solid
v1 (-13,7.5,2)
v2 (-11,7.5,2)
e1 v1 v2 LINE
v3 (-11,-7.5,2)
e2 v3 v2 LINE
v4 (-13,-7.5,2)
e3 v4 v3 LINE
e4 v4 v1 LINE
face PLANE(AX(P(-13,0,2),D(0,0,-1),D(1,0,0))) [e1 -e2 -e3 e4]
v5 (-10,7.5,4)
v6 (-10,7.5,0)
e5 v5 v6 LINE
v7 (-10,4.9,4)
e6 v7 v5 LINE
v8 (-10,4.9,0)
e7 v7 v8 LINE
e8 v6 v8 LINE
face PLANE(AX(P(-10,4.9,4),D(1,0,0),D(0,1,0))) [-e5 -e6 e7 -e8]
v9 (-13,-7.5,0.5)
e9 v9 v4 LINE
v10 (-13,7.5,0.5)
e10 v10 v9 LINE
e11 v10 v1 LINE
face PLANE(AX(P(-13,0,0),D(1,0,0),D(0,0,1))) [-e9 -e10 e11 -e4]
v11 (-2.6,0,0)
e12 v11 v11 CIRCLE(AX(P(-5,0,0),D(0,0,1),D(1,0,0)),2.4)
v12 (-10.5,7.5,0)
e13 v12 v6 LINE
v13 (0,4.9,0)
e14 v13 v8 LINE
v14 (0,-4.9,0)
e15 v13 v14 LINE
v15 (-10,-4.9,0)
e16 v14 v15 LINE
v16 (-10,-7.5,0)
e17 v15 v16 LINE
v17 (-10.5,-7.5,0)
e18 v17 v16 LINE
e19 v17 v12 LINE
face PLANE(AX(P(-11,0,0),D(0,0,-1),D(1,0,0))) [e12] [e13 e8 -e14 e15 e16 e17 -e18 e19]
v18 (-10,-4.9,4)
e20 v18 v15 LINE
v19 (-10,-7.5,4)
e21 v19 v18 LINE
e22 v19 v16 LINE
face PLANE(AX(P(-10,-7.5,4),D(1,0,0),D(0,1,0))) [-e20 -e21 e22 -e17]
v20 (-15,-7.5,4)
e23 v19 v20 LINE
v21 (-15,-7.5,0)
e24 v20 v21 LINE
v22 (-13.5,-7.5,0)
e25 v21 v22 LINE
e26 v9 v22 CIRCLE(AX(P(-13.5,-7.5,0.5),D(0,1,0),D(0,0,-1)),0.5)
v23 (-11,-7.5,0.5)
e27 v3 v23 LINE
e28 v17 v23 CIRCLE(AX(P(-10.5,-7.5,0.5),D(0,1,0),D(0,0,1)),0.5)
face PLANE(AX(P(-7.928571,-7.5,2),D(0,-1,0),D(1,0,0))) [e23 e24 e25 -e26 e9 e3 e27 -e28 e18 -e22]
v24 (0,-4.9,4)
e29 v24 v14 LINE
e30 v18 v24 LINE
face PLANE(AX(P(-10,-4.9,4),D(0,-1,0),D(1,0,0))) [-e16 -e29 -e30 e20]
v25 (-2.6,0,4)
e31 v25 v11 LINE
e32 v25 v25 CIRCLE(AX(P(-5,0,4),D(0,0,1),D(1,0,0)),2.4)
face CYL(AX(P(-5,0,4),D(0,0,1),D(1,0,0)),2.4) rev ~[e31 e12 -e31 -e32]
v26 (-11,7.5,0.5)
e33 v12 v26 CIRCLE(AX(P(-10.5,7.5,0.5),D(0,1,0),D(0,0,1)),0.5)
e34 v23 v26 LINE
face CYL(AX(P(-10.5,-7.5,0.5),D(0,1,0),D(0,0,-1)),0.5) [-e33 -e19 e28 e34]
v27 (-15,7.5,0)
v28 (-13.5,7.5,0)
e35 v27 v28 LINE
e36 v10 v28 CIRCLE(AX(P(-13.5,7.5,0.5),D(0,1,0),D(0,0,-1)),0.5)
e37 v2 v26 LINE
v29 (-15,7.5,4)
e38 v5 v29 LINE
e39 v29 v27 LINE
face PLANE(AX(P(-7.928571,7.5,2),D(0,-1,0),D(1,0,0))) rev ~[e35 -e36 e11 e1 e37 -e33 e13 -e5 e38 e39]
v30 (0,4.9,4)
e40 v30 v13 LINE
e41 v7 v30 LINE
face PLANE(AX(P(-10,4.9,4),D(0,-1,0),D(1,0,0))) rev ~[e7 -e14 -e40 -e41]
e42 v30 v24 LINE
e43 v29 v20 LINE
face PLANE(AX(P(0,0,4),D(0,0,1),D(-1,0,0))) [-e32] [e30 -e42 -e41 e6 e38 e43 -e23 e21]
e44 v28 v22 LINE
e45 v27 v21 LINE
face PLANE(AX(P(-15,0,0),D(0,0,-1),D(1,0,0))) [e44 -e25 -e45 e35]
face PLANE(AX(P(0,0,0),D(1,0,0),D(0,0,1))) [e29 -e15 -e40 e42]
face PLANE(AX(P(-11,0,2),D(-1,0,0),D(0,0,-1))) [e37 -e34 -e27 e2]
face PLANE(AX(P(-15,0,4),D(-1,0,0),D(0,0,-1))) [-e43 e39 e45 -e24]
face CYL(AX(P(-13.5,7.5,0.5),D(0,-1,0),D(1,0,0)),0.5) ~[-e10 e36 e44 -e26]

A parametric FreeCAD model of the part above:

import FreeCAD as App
import Part
import Sketcher
from FreeCAD import Vector


def edges_at(feature, points):
    """Names of the edges that pass closest to the given points."""
    edges = feature.Shape.Edges
    near = lambda p: min(range(len(edges)), key=lambda i: edges[i].distToShape(Part.Vertex(*p))[0])
    return sorted({f"Edge{near(p) + 1}" for p in points})


def add_polygon(sketch, points):
    """Adds a closed chain of lines whose ends are joined by coincident constraints."""
    first, n = sketch.GeometryCount, len(points)
    for a, b in zip(points, points[1:] + points[:1]):
        sketch.addGeometry(Part.LineSegment(App.Vector(*a, 0), App.Vector(*b, 0)), False)
    for i in range(n):
        sketch.addConstraint(Sketcher.Constraint("Coincident", first + i, 2, first + (i + 1) % n, 1))

doc = App.newDocument("Part")
params = doc.addObject("Spreadsheet::Sheet", "Params")
for row, (alias, value) in enumerate([
    ("sketch1_width", "11 mm"),
    ("sketch1_width2", "15 mm"),
    ("sketch1_height", "4 mm"),
    ("pad1_length", "7.5 mm"),
    ("pad1_length2", "7.5 mm"),
    ("sketch2_diameter", "4.8 mm"),
    ("sketch3_width", "10 mm"),
    ("sketch3_height", "2.6 mm"),
    ("fillet_radius", "0.5 mm"),
], start=1):
    params.set(f"A{row}", alias)
    params.set(f"B{row}", "=" + value)
    params.setAlias(f"B{row}", alias)

body = doc.addObject("PartDesign::Body", "Body")

sketch1 = body.newObject("Sketcher::SketchObject", "Sketch")
sketch1.AttachmentSupport = (doc.getObject("XZ_Plane"), [""])
sketch1.MapMode = "FlatFace"
add_polygon(sketch1, [(-11, 0), (0, 0), (0, 4), (-15, 4), (-15, 0), (-13, 0), (-13, 2), (-11, 2)])
sketch1.addConstraint([
    Sketcher.Constraint("Horizontal", 0),
    Sketcher.Constraint("Vertical", 1),
    Sketcher.Constraint("Horizontal", 2),
    Sketcher.Constraint("Vertical", 3),
    Sketcher.Constraint("Horizontal", 4),
    Sketcher.Constraint("Vertical", 5),
    Sketcher.Constraint("Horizontal", 6),
    Sketcher.Constraint("Vertical", 7),
    Sketcher.Constraint("Coincident", 0, 2, -1, 1),
    Sketcher.Constraint("PointOnObject", 3, 2, -1),
    Sketcher.Constraint("Equal", 4, 6),
    Sketcher.Constraint("Equal", 6, 5),
    Sketcher.Constraint("DistanceX", 0, 1, 0, 2, 11.0),
    Sketcher.Constraint("DistanceX", 2, 2, 2, 1, 15.0),
    Sketcher.Constraint("DistanceY", 1, 1, 1, 2, 4.0),
])
sketch1.setExpression("Constraints[20]", "Params.sketch1_width")
sketch1.setExpression("Constraints[21]", "Params.sketch1_width2")
sketch1.setExpression("Constraints[22]", "Params.sketch1_height")
pad1 = body.newObject("PartDesign::Pad", "Pad")
pad1.Profile = sketch1
pad1.Type = "TwoLengths"
pad1.setExpression("Length", "Params.pad1_length")
pad1.setExpression("Length2", "Params.pad1_length2")

sketch2 = body.newObject("Sketcher::SketchObject", "Sketch001")
sketch2.AttachmentSupport = (doc.getObject("XY_Plane"), [""])
sketch2.MapMode = "FlatFace"
sketch2.AttachmentOffset = App.Placement(Vector(0, 0, 4), App.Rotation())
sketch2.addGeometry(Part.Circle(Vector(-5, 0, 0), Vector(0, 0, 1), 2.4), False)
sketch2.addConstraint([
    Sketcher.Constraint("PointOnObject", 0, 3, -1),
    Sketcher.Constraint("Diameter", 0, 4.8),
    Sketcher.Constraint("DistanceX", 0, 3, -1, 1, 5.0),
])
sketch2.setExpression("Constraints[1]", "Params.sketch2_diameter")
pocket1 = body.newObject("PartDesign::Pocket", "Pocket")
pocket1.Profile = sketch2
pocket1.Type = "ThroughAll"

sketch3 = body.newObject("Sketcher::SketchObject", "Sketch002")
sketch3.AttachmentSupport = (doc.getObject("XY_Plane"), [""])
sketch3.MapMode = "FlatFace"
sketch3.AttachmentOffset = App.Placement(Vector(0, 0, 4), App.Rotation())
add_polygon(sketch3, [(-10, 7.5), (-10, 4.9), (0, 4.9), (0, 7.5)])
add_polygon(sketch3, [(-10, -4.9), (-10, -7.5), (0, -7.5), (0, -4.9)])
sketch3.addConstraint([
    Sketcher.Constraint("Vertical", 0),
    Sketcher.Constraint("Horizontal", 1),
    Sketcher.Constraint("Vertical", 2),
    Sketcher.Constraint("Horizontal", 3),
    Sketcher.Constraint("Vertical", 4),
    Sketcher.Constraint("Horizontal", 5),
    Sketcher.Constraint("Vertical", 6),
    Sketcher.Constraint("Horizontal", 7),
    Sketcher.Constraint("Symmetric", 2, 2, 5, 2, -1, 1),
    Sketcher.Constraint("Symmetric", 1, 2, 6, 2, -1),
    Sketcher.Constraint("Vertical", 3, 2, 4, 2),
    Sketcher.Constraint("DistanceX", 1, 1, 1, 2, 10.0),
    Sketcher.Constraint("DistanceY", 0, 2, 0, 1, 2.6),
    Sketcher.Constraint("DistanceY", 4, 2, 3, 2, 15.0),
])
sketch3.setExpression("Constraints[19]", "Params.sketch3_width")
sketch3.setExpression("Constraints[20]", "Params.sketch3_height")
pocket2 = body.newObject("PartDesign::Pocket", "Pocket001")
pocket2.Profile = sketch3
pocket2.Type = "ThroughAll"
doc.recompute()

fillet = body.newObject("PartDesign::Fillet", "Fillet")
fillet.Base = (pocket2, edges_at(pocket2, [(-13, 0, 0), (-11, 0, 0)]))
fillet.setExpression("Radius", "Params.fillet_radius")

doc.recompute()
